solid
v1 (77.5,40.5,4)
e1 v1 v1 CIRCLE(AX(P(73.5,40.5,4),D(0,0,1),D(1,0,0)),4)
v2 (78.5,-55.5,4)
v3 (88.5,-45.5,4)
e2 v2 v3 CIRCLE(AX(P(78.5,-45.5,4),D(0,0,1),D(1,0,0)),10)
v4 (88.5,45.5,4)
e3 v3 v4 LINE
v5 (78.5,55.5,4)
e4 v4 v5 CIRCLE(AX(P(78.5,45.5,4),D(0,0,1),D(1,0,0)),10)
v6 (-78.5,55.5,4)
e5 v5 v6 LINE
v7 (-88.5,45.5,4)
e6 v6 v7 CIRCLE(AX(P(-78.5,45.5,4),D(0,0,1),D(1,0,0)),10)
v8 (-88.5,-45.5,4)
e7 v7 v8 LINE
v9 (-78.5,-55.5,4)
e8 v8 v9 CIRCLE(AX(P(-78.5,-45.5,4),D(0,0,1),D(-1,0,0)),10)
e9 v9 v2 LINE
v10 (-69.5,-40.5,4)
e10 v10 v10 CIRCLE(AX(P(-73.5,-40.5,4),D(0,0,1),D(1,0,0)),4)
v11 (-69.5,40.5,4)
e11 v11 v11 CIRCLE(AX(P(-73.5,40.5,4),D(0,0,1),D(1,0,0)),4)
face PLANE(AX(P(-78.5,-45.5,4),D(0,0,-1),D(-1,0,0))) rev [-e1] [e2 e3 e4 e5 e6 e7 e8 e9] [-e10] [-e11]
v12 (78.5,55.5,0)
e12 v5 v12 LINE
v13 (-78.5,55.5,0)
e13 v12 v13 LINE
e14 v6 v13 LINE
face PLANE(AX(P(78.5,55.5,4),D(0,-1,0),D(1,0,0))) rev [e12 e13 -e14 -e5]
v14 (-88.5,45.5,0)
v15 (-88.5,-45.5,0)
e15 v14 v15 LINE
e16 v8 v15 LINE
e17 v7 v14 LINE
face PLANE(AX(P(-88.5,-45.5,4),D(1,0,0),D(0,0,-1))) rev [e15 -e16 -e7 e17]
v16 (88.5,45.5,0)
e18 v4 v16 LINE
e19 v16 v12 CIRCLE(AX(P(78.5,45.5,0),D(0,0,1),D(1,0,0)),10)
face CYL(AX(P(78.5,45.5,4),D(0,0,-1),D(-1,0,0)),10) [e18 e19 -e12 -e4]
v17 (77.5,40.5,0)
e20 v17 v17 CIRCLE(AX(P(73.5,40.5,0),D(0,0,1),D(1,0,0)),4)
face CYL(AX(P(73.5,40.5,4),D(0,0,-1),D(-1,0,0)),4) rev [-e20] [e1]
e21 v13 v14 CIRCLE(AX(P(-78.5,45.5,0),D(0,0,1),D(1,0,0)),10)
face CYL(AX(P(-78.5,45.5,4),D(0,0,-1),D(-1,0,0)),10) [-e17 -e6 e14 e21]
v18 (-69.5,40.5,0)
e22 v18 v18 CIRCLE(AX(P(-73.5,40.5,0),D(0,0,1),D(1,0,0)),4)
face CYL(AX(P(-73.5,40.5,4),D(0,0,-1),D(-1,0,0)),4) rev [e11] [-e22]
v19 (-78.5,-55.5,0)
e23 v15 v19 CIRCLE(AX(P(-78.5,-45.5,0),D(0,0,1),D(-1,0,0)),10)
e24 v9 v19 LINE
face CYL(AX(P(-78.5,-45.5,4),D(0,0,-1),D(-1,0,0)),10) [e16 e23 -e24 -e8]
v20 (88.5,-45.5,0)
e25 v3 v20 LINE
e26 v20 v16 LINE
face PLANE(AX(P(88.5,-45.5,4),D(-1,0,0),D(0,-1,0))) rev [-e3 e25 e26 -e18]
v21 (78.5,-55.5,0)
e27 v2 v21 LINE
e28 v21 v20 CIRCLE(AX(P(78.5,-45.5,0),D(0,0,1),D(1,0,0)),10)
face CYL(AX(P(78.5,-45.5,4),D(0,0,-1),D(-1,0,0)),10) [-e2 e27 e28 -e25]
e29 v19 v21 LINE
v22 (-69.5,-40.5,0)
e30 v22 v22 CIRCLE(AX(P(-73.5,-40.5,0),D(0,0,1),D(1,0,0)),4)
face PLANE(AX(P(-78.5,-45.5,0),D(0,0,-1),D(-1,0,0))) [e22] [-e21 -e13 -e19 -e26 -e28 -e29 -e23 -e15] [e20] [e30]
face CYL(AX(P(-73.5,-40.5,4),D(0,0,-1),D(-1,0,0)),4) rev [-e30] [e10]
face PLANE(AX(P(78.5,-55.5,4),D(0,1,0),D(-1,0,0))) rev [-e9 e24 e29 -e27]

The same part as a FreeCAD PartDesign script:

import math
import FreeCAD as App
import Part
import Sketcher

V = App.Vector
Q = App.Units.Quantity

doc = App.newDocument("Part")
params = doc.addObject("Spreadsheet::Sheet", "Params")
for row, (alias, value) in enumerate([
    ("sketch1_diameter", "8 mm"),
    ("sketch1_radius", "10 mm"),
    ("sketch1_width", "157 mm"),
    ("sketch1_height", "91 mm"),
    ("pad1_length", "4 mm"),
], start=1):
    params.set(f"A{row}", alias)
    params.set(f"B{row}", "=" + value)
    params.setAlias(f"B{row}", alias)

body = doc.addObject("PartDesign::Body", "Body")

# Sketch on XY plane
sketch1 = body.newObject("Sketcher::SketchObject", "Sketch")
sketch1.AttachmentSupport = (doc.getObject("XY_Plane"), [""])
sketch1.MapMode = "FlatFace"
sketch1.addGeometry(Part.LineSegment(V(-78.5, -55.5, 0), V(78.5, -55.5, 0)), False)
sketch1.addGeometry(Part.ArcOfCircle(Part.Circle(V(78.5, -45.5, 0), V(0, 0, 1), 10), math.radians(-90), math.radians(0)), False)
sketch1.addGeometry(Part.LineSegment(V(88.5, -45.5, 0), V(88.5, 45.5, 0)), False)
sketch1.addGeometry(Part.ArcOfCircle(Part.Circle(V(78.5, 45.5, 0), V(0, 0, 1), 10), math.radians(0), math.radians(90)), False)
sketch1.addGeometry(Part.LineSegment(V(78.5, 55.5, 0), V(-78.5, 55.5, 0)), False)
sketch1.addGeometry(Part.ArcOfCircle(Part.Circle(V(-78.5, 45.5, 0), V(0, 0, 1), 10), math.radians(90), math.radians(180)), False)
sketch1.addGeometry(Part.LineSegment(V(-88.5, 45.5, 0), V(-88.5, -45.5, 0)), False)
sketch1.addGeometry(Part.ArcOfCircle(Part.Circle(V(-78.5, -45.5, 0), V(0, 0, 1), 10), math.radians(180), math.radians(270)), False)
sketch1.addGeometry(Part.Circle(V(-73.5, -40.5, 0), V(0, 0, 1), 4), False)
sketch1.addGeometry(Part.Circle(V(73.5, 40.5, 0), V(0, 0, 1), 4), False)
sketch1.addGeometry(Part.Circle(V(-73.5, 40.5, 0), V(0, 0, 1), 4), False)
sketch1.addConstraint(Sketcher.Constraint("Tangent", 0, 2, 1, 1))
sketch1.addConstraint(Sketcher.Constraint("Tangent", 1, 2, 2, 1))
sketch1.addConstraint(Sketcher.Constraint("Tangent", 2, 2, 3, 1))
sketch1.addConstraint(Sketcher.Constraint("Tangent", 3, 2, 4, 1))
sketch1.addConstraint(Sketcher.Constraint("Tangent", 4, 2, 5, 1))
sketch1.addConstraint(Sketcher.Constraint("Tangent", 5, 2, 6, 1))
sketch1.addConstraint(Sketcher.Constraint("Tangent", 6, 2, 7, 1))
sketch1.addConstraint(Sketcher.Constraint("Tangent", 7, 2, 0, 1))
sketch1.addConstraint(Sketcher.Constraint("Horizontal", 0))
sketch1.addConstraint(Sketcher.Constraint("Vertical", 2))
sketch1.addConstraint(Sketcher.Constraint("Horizontal", 4))
sketch1.addConstraint(Sketcher.Constraint("Vertical", 6))
sketch1.addConstraint(Sketcher.Constraint("Equal", 1, 3))
sketch1.addConstraint(Sketcher.Constraint("Equal", 3, 5))
sketch1.addConstraint(Sketcher.Constraint("Equal", 5, 7))
sketch1.addConstraint(Sketcher.Constraint("Equal", 8, 9))
sketch1.addConstraint(Sketcher.Constraint("Equal", 9, 10))
sketch1.addConstraint(Sketcher.Constraint("Symmetric", 1, 3, 5, 3, -1, 1))
sketch1.addConstraint(Sketcher.Constraint("Symmetric", 8, 3, 9, 3, -1, 1))
sketch1.addConstraint(Sketcher.Constraint("Symmetric", 9, 3, 10, 3, -2))
sketch1.addConstraint(Sketcher.Constraint("Diameter", 8, Q("8 mm")))
sketch1.addConstraint(Sketcher.Constraint("Radius", 1, Q("10 mm")))
sketch1.addConstraint(Sketcher.Constraint("DistanceX", 0, 1, 0, 2, Q("157 mm")))
sketch1.addConstraint(Sketcher.Constraint("DistanceY", 2, 1, 2, 2, Q("91 mm")))
sketch1.addConstraint(Sketcher.Constraint("DistanceX", 7, 3, 8, 3, Q("5 mm")))
sketch1.addConstraint(Sketcher.Constraint("DistanceY", 7, 3, 8, 3, Q("5 mm")))
sketch1.setExpression("Constraints[20]", "Params.sketch1_diameter")
sketch1.setExpression("Constraints[21]", "Params.sketch1_radius")
sketch1.setExpression("Constraints[22]", "Params.sketch1_width")
sketch1.setExpression("Constraints[23]", "Params.sketch1_height")
pad1 = body.newObject("PartDesign::Pad", "Pad")
pad1.Profile = sketch1
pad1.setExpression("Length", "Params.pad1_length")

doc.recompute()
